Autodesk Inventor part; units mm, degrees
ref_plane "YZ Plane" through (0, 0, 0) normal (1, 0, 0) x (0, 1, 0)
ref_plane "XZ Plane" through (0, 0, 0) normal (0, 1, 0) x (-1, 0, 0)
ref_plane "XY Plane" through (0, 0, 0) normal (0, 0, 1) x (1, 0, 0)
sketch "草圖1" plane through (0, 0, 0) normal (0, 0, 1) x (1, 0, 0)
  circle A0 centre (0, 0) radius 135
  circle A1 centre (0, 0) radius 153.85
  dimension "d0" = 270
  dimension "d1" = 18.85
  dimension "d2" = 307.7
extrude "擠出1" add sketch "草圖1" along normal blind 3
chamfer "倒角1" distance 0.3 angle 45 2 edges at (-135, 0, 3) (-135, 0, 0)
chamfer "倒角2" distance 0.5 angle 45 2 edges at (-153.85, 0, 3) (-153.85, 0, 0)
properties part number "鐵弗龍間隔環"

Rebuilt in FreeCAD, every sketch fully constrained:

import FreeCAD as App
import Part
import Sketcher
from FreeCAD import Vector


def edges_at(feature, points):
    """Names of the edges that pass closest to the given points."""
    edges = feature.Shape.Edges
    near = lambda p: min(range(len(edges)), key=lambda i: edges[i].distToShape(Part.Vertex(*p))[0])
    return sorted({f"Edge{near(p) + 1}" for p in points})

doc = App.newDocument("Part")
body = doc.addObject("PartDesign::Body", "Body")

sketch1 = body.newObject("Sketcher::SketchObject", "Sketch")
sketch1.AttachmentSupport = (doc.getObject("XY_Plane"), [""])
sketch1.MapMode = "FlatFace"
sketch1.addGeometry([
    Part.Circle(Vector(0, 0, 0), Vector(0, 0, 1), 154),
    Part.Circle(Vector(0, 0, 0), Vector(0, 0, 1), 135),
], False)
sketch1.addConstraint([
    Sketcher.Constraint("Coincident", 0, 3, -1, 1),
    Sketcher.Constraint("Coincident", 1, 3, -1, 1),
    Sketcher.Constraint("Diameter", 1, 270.0),
    Sketcher.Constraint("Diameter", 0, 307.7),
])
pad1 = body.newObject("PartDesign::Pad", "Pad")
pad1.Profile = sketch1
pad1.Length = 3
doc.recompute()

chamfer = body.newObject("PartDesign::Chamfer", "Chamfer")
chamfer.Base = (pad1, edges_at(pad1, [(-135, 0, 3), (-135, 0, 0)]))
chamfer.Size = 0.3
doc.recompute()

chamfer2 = body.newObject("PartDesign::Chamfer", "Chamfer001")
chamfer2.Base = (chamfer, edges_at(chamfer, [(-153.85, 0, 3), (-153.85, 0, 0)]))
chamfer2.Size = 0.5

doc.recompute()
